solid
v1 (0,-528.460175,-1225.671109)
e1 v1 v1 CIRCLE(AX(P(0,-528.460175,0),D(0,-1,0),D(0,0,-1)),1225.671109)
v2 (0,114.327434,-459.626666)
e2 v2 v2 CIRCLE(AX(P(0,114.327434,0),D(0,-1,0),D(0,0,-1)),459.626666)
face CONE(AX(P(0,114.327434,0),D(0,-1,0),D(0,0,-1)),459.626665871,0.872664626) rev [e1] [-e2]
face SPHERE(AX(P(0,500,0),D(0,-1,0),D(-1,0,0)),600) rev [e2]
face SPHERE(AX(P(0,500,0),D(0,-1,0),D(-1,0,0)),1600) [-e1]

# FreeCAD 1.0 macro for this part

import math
import FreeCAD as App
import Part
import Sketcher

V = App.Vector
Q = App.Units.Quantity

doc = App.newDocument("Part")
body = doc.addObject("PartDesign::Body", "Body")

# Sketch on XY plane
sketch1 = body.newObject("Sketcher::SketchObject", "Sketch")
sketch1.AttachmentSupport = (doc.getObject("XY_Plane"), [""])
sketch1.MapMode = "FlatFace"
sketch1.addGeometry([
    Part.LineSegment(V(-1226, -528, 0), V(-460, 114, 0)),
    Part.ArcOfCircle(Part.Circle(V(0, 500, 0), V(0, 0, 1), 600), math.radians(90), math.radians(220)),
    Part.LineSegment(V(0, 1100, 0), V(0, 2100, 0)),
    Part.ArcOfCircle(Part.Circle(V(0, 500, 0), V(0, 0, 1), 1600), math.radians(90), math.radians(220)),
], False)
sketch1.addConstraint([
    Sketcher.Constraint("Coincident", 0, 2, 1, 2),
    Sketcher.Constraint("Coincident", 1, 1, 2, 1),
    Sketcher.Constraint("Coincident", 2, 2, 3, 1),
    Sketcher.Constraint("Coincident", 3, 2, 0, 1),
    Sketcher.Constraint("Vertical", 2),
    Sketcher.Constraint("Coincident", 3, 3, 1, 3),
    Sketcher.Constraint("PointOnObject", 1, 3, -2),
    Sketcher.Constraint("PointOnObject", 2, 2, -2),
    Sketcher.Constraint("Radius", 1, 600.0),
    Sketcher.Constraint("Radius", 3, 1600.0),
    Sketcher.Constraint("Angle", 0, Q("40 deg")),
    Sketcher.Constraint("DistanceY", -1, 1, 1, 3, 500.0),
    Sketcher.Constraint("DistanceX", 0, 2, -1, 1, 459.626666),
])
revolution = body.newObject("PartDesign::Revolution", "Revolution")
revolution.Profile = sketch1
revolution.ReferenceAxis = (sketch1, ["V_Axis"])
revolution.Angle = 360

doc.recompute()
